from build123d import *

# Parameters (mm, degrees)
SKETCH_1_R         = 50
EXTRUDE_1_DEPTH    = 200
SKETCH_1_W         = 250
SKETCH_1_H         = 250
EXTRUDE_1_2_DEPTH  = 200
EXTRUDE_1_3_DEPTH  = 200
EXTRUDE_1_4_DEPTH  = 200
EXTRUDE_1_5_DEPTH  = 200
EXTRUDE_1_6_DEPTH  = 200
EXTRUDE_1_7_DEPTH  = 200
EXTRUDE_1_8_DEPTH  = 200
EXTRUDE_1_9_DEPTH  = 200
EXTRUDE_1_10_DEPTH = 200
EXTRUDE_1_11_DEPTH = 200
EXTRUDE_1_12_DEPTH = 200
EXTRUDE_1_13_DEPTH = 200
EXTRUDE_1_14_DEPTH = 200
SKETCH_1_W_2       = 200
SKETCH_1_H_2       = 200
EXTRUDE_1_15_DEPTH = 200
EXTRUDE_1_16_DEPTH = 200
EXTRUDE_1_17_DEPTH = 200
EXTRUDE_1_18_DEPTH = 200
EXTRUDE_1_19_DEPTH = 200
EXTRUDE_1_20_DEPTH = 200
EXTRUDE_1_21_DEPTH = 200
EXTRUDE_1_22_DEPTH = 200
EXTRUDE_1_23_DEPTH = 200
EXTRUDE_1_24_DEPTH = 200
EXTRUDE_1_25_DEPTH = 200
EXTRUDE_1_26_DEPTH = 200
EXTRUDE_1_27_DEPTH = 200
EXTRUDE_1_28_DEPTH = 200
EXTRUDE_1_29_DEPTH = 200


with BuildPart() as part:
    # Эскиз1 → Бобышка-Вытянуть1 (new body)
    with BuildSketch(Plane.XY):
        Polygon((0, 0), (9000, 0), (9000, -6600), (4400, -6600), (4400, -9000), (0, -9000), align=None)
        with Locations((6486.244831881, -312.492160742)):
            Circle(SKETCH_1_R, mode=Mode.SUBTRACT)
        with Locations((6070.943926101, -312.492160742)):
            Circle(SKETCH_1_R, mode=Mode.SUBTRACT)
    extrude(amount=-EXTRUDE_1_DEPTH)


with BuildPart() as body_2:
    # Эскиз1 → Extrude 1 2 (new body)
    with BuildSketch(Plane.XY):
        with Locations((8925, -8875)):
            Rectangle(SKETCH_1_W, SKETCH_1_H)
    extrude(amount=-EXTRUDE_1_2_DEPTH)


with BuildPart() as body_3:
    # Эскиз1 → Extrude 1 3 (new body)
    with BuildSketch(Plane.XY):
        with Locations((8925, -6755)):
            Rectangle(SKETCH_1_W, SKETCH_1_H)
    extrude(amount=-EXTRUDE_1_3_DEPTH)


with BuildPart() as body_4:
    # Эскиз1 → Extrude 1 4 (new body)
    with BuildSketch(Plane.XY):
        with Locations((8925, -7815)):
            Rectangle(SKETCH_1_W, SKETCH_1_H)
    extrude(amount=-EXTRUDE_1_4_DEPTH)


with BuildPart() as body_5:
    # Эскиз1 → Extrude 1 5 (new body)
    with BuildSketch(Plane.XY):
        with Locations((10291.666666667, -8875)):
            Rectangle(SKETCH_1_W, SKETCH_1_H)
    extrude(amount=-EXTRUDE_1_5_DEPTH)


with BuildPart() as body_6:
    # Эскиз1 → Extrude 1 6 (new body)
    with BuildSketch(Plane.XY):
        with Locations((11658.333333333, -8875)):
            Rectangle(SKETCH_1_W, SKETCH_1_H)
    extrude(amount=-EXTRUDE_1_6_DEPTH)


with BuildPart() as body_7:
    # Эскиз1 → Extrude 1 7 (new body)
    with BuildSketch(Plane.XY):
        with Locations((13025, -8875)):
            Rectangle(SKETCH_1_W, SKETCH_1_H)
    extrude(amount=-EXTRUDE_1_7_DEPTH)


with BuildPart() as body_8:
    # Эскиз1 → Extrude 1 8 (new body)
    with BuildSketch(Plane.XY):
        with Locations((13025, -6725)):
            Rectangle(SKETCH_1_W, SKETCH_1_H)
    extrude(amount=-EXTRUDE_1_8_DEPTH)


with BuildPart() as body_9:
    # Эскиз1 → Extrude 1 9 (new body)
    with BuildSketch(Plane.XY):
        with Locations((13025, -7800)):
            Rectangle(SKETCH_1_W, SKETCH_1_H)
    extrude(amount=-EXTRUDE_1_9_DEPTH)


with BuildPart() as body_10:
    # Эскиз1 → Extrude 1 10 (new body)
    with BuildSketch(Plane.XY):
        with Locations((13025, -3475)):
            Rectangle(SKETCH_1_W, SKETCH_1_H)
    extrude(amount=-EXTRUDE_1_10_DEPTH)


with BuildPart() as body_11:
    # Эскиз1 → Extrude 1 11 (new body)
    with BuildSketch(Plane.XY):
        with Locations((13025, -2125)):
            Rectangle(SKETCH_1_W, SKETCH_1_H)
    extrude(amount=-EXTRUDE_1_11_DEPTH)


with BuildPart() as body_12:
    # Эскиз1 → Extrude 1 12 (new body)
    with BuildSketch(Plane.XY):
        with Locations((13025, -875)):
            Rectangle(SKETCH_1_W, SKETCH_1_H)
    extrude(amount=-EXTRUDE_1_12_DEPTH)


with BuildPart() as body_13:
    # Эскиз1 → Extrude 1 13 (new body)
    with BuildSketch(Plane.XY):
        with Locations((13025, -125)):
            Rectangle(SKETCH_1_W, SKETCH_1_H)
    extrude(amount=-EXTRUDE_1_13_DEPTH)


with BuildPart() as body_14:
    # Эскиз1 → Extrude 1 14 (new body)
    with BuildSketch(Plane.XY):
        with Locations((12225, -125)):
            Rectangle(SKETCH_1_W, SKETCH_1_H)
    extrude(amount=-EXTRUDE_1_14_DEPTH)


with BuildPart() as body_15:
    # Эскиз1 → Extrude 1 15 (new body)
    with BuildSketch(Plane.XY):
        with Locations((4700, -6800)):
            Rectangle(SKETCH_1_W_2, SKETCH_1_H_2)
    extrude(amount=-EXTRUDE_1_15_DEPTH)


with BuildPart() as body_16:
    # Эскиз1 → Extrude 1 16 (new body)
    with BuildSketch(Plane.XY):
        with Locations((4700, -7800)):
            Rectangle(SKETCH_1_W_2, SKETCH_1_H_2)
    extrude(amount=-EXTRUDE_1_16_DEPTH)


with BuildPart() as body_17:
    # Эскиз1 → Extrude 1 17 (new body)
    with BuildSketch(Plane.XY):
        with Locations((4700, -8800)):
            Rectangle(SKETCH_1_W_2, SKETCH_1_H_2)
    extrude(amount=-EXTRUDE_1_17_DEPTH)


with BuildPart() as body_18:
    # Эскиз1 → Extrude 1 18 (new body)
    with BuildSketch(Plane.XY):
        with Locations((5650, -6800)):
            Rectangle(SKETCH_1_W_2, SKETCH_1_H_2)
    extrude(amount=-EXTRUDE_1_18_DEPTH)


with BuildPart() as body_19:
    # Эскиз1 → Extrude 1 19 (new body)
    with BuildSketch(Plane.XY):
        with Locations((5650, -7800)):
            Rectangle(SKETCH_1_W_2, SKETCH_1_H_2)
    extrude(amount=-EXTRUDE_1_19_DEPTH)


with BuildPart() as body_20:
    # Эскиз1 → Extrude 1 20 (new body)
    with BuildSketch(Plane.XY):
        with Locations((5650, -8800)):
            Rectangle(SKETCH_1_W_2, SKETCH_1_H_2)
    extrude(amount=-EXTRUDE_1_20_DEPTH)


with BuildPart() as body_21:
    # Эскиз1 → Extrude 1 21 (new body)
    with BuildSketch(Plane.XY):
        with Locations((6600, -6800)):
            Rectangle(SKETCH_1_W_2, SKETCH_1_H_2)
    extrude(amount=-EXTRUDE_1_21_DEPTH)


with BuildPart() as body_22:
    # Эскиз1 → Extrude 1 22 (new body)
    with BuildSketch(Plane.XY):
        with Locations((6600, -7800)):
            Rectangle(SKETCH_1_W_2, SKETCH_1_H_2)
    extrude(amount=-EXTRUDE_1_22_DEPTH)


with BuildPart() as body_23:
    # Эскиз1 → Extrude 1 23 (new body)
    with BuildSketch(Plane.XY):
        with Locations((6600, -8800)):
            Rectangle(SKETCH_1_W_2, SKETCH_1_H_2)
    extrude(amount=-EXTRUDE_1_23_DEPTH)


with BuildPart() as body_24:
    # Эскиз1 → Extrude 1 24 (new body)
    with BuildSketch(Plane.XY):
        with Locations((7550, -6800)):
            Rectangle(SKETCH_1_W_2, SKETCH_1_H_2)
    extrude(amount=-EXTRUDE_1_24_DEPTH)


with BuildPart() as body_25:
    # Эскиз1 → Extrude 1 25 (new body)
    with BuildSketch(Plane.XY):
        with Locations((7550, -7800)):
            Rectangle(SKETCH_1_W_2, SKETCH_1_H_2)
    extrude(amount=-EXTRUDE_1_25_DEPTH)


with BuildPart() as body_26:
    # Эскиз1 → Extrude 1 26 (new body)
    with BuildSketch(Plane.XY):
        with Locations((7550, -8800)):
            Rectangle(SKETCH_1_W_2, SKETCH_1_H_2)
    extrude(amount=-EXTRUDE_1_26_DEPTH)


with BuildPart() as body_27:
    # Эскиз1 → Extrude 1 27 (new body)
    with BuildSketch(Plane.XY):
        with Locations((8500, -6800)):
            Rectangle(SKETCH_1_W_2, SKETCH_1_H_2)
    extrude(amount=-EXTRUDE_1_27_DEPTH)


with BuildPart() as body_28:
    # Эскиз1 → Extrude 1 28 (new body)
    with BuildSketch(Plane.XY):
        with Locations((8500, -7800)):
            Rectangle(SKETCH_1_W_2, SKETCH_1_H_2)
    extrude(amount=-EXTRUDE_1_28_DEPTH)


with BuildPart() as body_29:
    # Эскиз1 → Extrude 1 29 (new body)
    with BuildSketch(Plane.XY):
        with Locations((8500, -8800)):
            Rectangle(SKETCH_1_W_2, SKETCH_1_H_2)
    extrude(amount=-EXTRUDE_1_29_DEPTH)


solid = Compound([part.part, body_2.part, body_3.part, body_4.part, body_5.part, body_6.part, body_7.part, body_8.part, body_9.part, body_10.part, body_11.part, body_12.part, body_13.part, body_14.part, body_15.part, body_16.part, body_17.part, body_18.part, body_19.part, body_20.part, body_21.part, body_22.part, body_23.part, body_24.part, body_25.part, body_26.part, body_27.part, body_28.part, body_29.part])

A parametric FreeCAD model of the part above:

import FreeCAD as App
import Part
import Sketcher
Q = App.Units.Quantity

doc = App.newDocument("Part")
body = doc.addObject("PartDesign::Body", "Body")

sketch1 = body.newObject("Sketcher::SketchObject", "Sketch")
sketch1.AttachmentSupport = (doc.getObject("XY_Plane"), [""])
sketch1.MapMode = "FlatFace"
sketch1.addGeometry([
    Part.LineSegment(App.Vector(9000, 0, 0), App.Vector(0, 0, 0)),
    Part.LineSegment(App.Vector(0, 0, 0), App.Vector(0, -9000, 0)),
    Part.LineSegment(App.Vector(0, -9000, 0), App.Vector(4400, -9000, 0)),
    Part.LineSegment(App.Vector(4400, -9000, 0), App.Vector(4400, -6600, 0)),
    Part.LineSegment(App.Vector(4400, -6600, 0), App.Vector(9000, -6600, 0)),
    Part.LineSegment(App.Vector(9000, -6600, 0), App.Vector(9000, 0, 0)),
    Part.Circle(App.Vector(6486, -312, 0), App.Vector(0, 0, 1), 50),
    Part.Circle(App.Vector(6071, -312, 0), App.Vector(0, 0, 1), 50),
], False)
sketch1.addConstraint([
    Sketcher.Constraint("Coincident", 0, 2, 1, 1),
    Sketcher.Constraint("Coincident", 1, 2, 2, 1),
    Sketcher.Constraint("Coincident", 2, 2, 3, 1),
    Sketcher.Constraint("Coincident", 3, 2, 4, 1),
    Sketcher.Constraint("Coincident", 4, 2, 5, 1),
    Sketcher.Constraint("Coincident", 5, 2, 0, 1),
    Sketcher.Constraint("Horizontal", 0),
    Sketcher.Constraint("Vertical", 1),
    Sketcher.Constraint("Horizontal", 2),
    Sketcher.Constraint("Vertical", 3),
    Sketcher.Constraint("Horizontal", 4),
    Sketcher.Constraint("Vertical", 5),
    Sketcher.Constraint("Coincident", 0, 2, -1, 1),
    Sketcher.Constraint("Equal", 6, 7),
    Sketcher.Constraint("Horizontal", 6, 3, 7, 3),
    Sketcher.Constraint("Equal", 0, 1),
    Sketcher.Constraint("Diameter", 6, Q("100 mm")),
    Sketcher.Constraint("DistanceX", 0, 2, 0, 1, Q("9000 mm")),
    Sketcher.Constraint("DistanceX", 2, 1, 2, 2, Q("4400 mm")),
    Sketcher.Constraint("DistanceY", 3, 1, 3, 2, Q("2400 mm")),
    Sketcher.Constraint("DistanceX", -1, 1, 6, 3, Q("6486.244832 mm")),
    Sketcher.Constraint("DistanceY", 6, 3, -1, 1, Q("312.492161 mm")),
    Sketcher.Constraint("DistanceX", -1, 1, 7, 3, Q("6070.943926 mm")),
])
pad1 = body.newObject("PartDesign::Pad", "Pad")
pad1.Profile = sketch1
pad1.Length = 200
pad1.Reversed = True
body2 = doc.addObject("PartDesign::Body", "Body001")

sketch2 = body2.newObject("Sketcher::SketchObject", "Sketch001")
sketch2.AttachmentSupport = (doc.getObject("XY_Plane001"), [""])
sketch2.MapMode = "FlatFace"
sketch2.addGeometry([
    Part.LineSegment(App.Vector(8800, -8750, 0), App.Vector(8800, -9000, 0)),
    Part.LineSegment(App.Vector(8800, -9000, 0), App.Vector(9050, -9000, 0)),
    Part.LineSegment(App.Vector(9050, -9000, 0), App.Vector(9050, -8750, 0)),
    Part.LineSegment(App.Vector(9050, -8750, 0), App.Vector(8800, -8750, 0)),
], False)
sketch2.addConstraint([
    Sketcher.Constraint("Coincident", 0, 2, 1, 1),
    Sketcher.Constraint("Coincident", 1, 2, 2, 1),
    Sketcher.Constraint("Coincident", 2, 2, 3, 1),
    Sketcher.Constraint("Coincident", 3, 2, 0, 1),
    Sketcher.Constraint("Vertical", 0),
    Sketcher.Constraint("Horizontal", 1),
    Sketcher.Constraint("Vertical", 2),
    Sketcher.Constraint("Horizontal", 3),
    Sketcher.Constraint("Equal", 3, 0),
    Sketcher.Constraint("DistanceX", 1, 1, 1, 2, Q("250 mm")),
    Sketcher.Constraint("DistanceX", -1, 1, 0, 2, Q("8800 mm")),
    Sketcher.Constraint("DistanceY", 0, 2, -1, 1, Q("9000 mm")),
])
pad2 = body2.newObject("PartDesign::Pad", "Pad001")
pad2.Profile = sketch2
pad2.Length = 200
pad2.Reversed = True
body3 = doc.addObject("PartDesign::Body", "Body002")

sketch3 = body3.newObject("Sketcher::SketchObject", "Sketch002")
sketch3.AttachmentSupport = (doc.getObject("XY_Plane002"), [""])
sketch3.MapMode = "FlatFace"
sketch3.addGeometry([
    Part.LineSegment(App.Vector(8800, -6630, 0), App.Vector(8800, -6880, 0)),
    Part.LineSegment(App.Vector(8800, -6880, 0), App.Vector(9050, -6880, 0)),
    Part.LineSegment(App.Vector(9050, -6880, 0), App.Vector(9050, -6630, 0)),
    Part.LineSegment(App.Vector(9050, -6630, 0), App.Vector(8800, -6630, 0)),
], False)
sketch3.addConstraint([
    Sketcher.Constraint("Coincident", 0, 2, 1, 1),
    Sketcher.Constraint("Coincident", 1, 2, 2, 1),
    Sketcher.Constraint("Coincident", 2, 2, 3, 1),
    Sketcher.Constraint("Coincident", 3, 2, 0, 1),
    Sketcher.Constraint("Vertical", 0),
    Sketcher.Constraint("Horizontal", 1),
    Sketcher.Constraint("Vertical", 2),
    Sketcher.Constraint("Horizontal", 3),
    Sketcher.Constraint("Equal", 3, 0),
    Sketcher.Constraint("DistanceX", 1, 1, 1, 2, Q("250 mm")),
    Sketcher.Constraint("DistanceX", -1, 1, 0, 2, Q("8800 mm")),
    Sketcher.Constraint("DistanceY", 0, 2, -1, 1, Q("6880 mm")),
])
pad3 = body3.newObject("PartDesign::Pad", "Pad002")
pad3.Profile = sketch3
pad3.Length = 200
pad3.Reversed = True
body4 = doc.addObject("PartDesign::Body", "Body003")

sketch4 = body4.newObject("Sketcher::SketchObject", "Sketch003")
sketch4.AttachmentSupport = (doc.getObject("XY_Plane003"), [""])
sketch4.MapMode = "FlatFace"
sketch4.addGeometry([
    Part.LineSegment(App.Vector(8800, -7690, 0), App.Vector(8800, -7940, 0)),
    Part.LineSegment(App.Vector(8800, -7940, 0), App.Vector(9050, -7940, 0)),
    Part.LineSegment(App.Vector(9050, -7940, 0), App.Vector(9050, -7690, 0)),
    Part.LineSegment(App.Vector(9050, -7690, 0), App.Vector(8800, -7690, 0)),
], False)
sketch4.addConstraint([
    Sketcher.Constraint("Coincident", 0, 2, 1, 1),
    Sketcher.Constraint("Coincident", 1, 2, 2, 1),
    Sketcher.Constraint("Coincident", 2, 2, 3, 1),
    Sketcher.Constraint("Coincident", 3, 2, 0, 1),
    Sketcher.Constraint("Vertical", 0),
    Sketcher.Constraint("Horizontal", 1),
    Sketcher.Constraint("Vertical", 2),
    Sketcher.Constraint("Horizontal", 3),
    Sketcher.Constraint("Equal", 3, 0),
    Sketcher.Constraint("DistanceX", 1, 1, 1, 2, Q("250 mm")),
    Sketcher.Constraint("DistanceX", -1, 1, 0, 2, Q("8800 mm")),
    Sketcher.Constraint("DistanceY", 0, 2, -1, 1, Q("7940 mm")),
])
pad4 = body4.newObject("PartDesign::Pad", "Pad003")
pad4.Profile = sketch4
pad4.Length = 200
pad4.Reversed = True
body5 = doc.addObject("PartDesign::Body", "Body004")

sketch5 = body5.newObject("Sketcher::SketchObject", "Sketch004")
sketch5.AttachmentSupport = (doc.getObject("XY_Plane004"), [""])
sketch5.MapMode = "FlatFace"
sketch5.addGeometry([
    Part.LineSegment(App.Vector(10167, -8750, 0), App.Vector(10167, -9000, 0)),
    Part.LineSegment(App.Vector(10167, -9000, 0), App.Vector(10417, -9000, 0)),
    Part.LineSegment(App.Vector(10417, -9000, 0), App.Vector(10417, -8750, 0)),
    Part.LineSegment(App.Vector(10417, -8750, 0), App.Vector(10167, -8750, 0)),
], False)
sketch5.addConstraint([
    Sketcher.Constraint("Coincident", 0, 2, 1, 1),
    Sketcher.Constraint("Coincident", 1, 2, 2, 1),
    Sketcher.Constraint("Coincident", 2, 2, 3, 1),
    Sketcher.Constraint("Coincident", 3, 2, 0, 1),
    Sketcher.Constraint("Vertical", 0),
    Sketcher.Constraint("Horizontal", 1),
    Sketcher.Constraint("Vertical", 2),
    Sketcher.Constraint("Horizontal", 3),
    Sketcher.Constraint("Equal", 3, 0),
    Sketcher.Constraint("DistanceX", 1, 1, 1, 2, Q("250 mm")),
    Sketcher.Constraint("DistanceY", 0, 2, -1, 1, Q("9000 mm")),
    Sketcher.Constraint("DistanceX", -1, 1, 0, 2, Q("10166.666667 mm")),
])
pad5 = body5.newObject("PartDesign::Pad", "Pad004")
pad5.Profile = sketch5
pad5.Length = 200
pad5.Reversed = True
body6 = doc.addObject("PartDesign::Body", "Body005")

sketch6 = body6.newObject("Sketcher::SketchObject", "Sketch005")
sketch6.AttachmentSupport = (doc.getObject("XY_Plane005"), [""])
sketch6.MapMode = "FlatFace"
sketch6.addGeometry([
    Part.LineSegment(App.Vector(11533, -8750, 0), App.Vector(11533, -9000, 0)),
    Part.LineSegment(App.Vector(11533, -9000, 0), App.Vector(11783, -9000, 0)),
    Part.LineSegment(App.Vector(11783, -9000, 0), App.Vector(11783, -8750, 0)),
    Part.LineSegment(App.Vector(11783, -8750, 0), App.Vector(11533, -8750, 0)),
], False)
sketch6.addConstraint([
    Sketcher.Constraint("Coincident", 0, 2, 1, 1),
    Sketcher.Constraint("Coincident", 1, 2, 2, 1),
    Sketcher.Constraint("Coincident", 2, 2, 3, 1),
    Sketcher.Constraint("Coincident", 3, 2, 0, 1),
    Sketcher.Constraint("Vertical", 0),
    Sketcher.Constraint("Horizontal", 1),
    Sketcher.Constraint("Vertical", 2),
    Sketcher.Constraint("Horizontal", 3),
    Sketcher.Constraint("Equal", 3, 0),
    Sketcher.Constraint("DistanceX", 1, 1, 1, 2, Q("250 mm")),
    Sketcher.Constraint("DistanceY", 0, 2, -1, 1, Q("9000 mm")),
    Sketcher.Constraint("DistanceX", -1, 1, 0, 2, Q("11533.333333 mm")),
])
pad6 = body6.newObject("PartDesign::Pad", "Pad005")
pad6.Profile = sketch6
pad6.Length = 200
pad6.Reversed = True
body7 = doc.addObject("PartDesign::Body", "Body006")

sketch7 = body7.newObject("Sketcher::SketchObject", "Sketch006")
sketch7.AttachmentSupport = (doc.getObject("XY_Plane006"), [""])
sketch7.MapMode = "FlatFace"
sketch7.addGeometry([
    Part.LineSegment(App.Vector(12900, -8750, 0), App.Vector(12900, -9000, 0)),
    Part.LineSegment(App.Vector(12900, -9000, 0), App.Vector(13150, -9000, 0)),
    Part.LineSegment(App.Vector(13150, -9000, 0), App.Vector(13150, -8750, 0)),
    Part.LineSegment(App.Vector(13150, -8750, 0), App.Vector(12900, -8750, 0)),
], False)
sketch7.addConstraint([
    Sketcher.Constraint("Coincident", 0, 2, 1, 1),
    Sketcher.Constraint("Coincident", 1, 2, 2, 1),
    Sketcher.Constraint("Coincident", 2, 2, 3, 1),
    Sketcher.Constraint("Coincident", 3, 2, 0, 1),
    Sketcher.Constraint("Vertical", 0),
    Sketcher.Constraint("Horizontal", 1),
    Sketcher.Constraint("Vertical", 2),
    Sketcher.Constraint("Horizontal", 3),
    Sketcher.Constraint("Equal", 3, 0),
    Sketcher.Constraint("DistanceX", 1, 1, 1, 2, Q("250 mm")),
    Sketcher.Constraint("DistanceX", -1, 1, 0, 2, Q("12900 mm")),
    Sketcher.Constraint("DistanceY", 0, 2, -1, 1, Q("9000 mm")),
])
pad7 = body7.newObject("PartDesign::Pad", "Pad006")
pad7.Profile = sketch7
pad7.Length = 200
pad7.Reversed = True
body8 = doc.addObject("PartDesign::Body", "Body007")

sketch8 = body8.newObject("Sketcher::SketchObject", "Sketch007")
sketch8.AttachmentSupport = (doc.getObject("XY_Plane007"), [""])
sketch8.MapMode = "FlatFace"
sketch8.addGeometry([
    Part.LineSegment(App.Vector(12900, -6600, 0), App.Vector(12900, -6850, 0)),
    Part.LineSegment(App.Vector(12900, -6850, 0), App.Vector(13150, -6850, 0)),
    Part.LineSegment(App.Vector(13150, -6850, 0), App.Vector(13150, -6600, 0)),
    Part.LineSegment(App.Vector(13150, -6600, 0), App.Vector(12900, -6600, 0)),
], False)
sketch8.addConstraint([
    Sketcher.Constraint("Coincident", 0, 2, 1, 1),
    Sketcher.Constraint("Coincident", 1, 2, 2, 1),
    Sketcher.Constraint("Coincident", 2, 2, 3, 1),
    Sketcher.Constraint("Coincident", 3, 2, 0, 1),
    Sketcher.Constraint("Vertical", 0),
    Sketcher.Constraint("Horizontal", 1),
    Sketcher.Constraint("Vertical", 2),
    Sketcher.Constraint("Horizontal", 3),
    Sketcher.Constraint("Equal", 3, 0),
    Sketcher.Constraint("DistanceX", 1, 1, 1, 2, Q("250 mm")),
    Sketcher.Constraint("DistanceX", -1, 1, 0, 2, Q("12900 mm")),
    Sketcher.Constraint("DistanceY", 0, 2, -1, 1, Q("6850 mm")),
])
pad8 = body8.newObject("PartDesign::Pad", "Pad007")
pad8.Profile = sketch8
pad8.Length = 200
pad8.Reversed = True
body9 = doc.addObject("PartDesign::Body", "Body008")

sketch9 = body9.newObject("Sketcher::SketchObject", "Sketch008")
sketch9.AttachmentSupport = (doc.getObject("XY_Plane008"), [""])
sketch9.MapMode = "FlatFace"
sketch9.addGeometry([
    Part.LineSegment(App.Vector(12900, -7675, 0), App.Vector(12900, -7925, 0)),
    Part.LineSegment(App.Vector(12900, -7925, 0), App.Vector(13150, -7925, 0)),
    Part.LineSegment(App.Vector(13150, -7925, 0), App.Vector(13150, -7675, 0)),
    Part.LineSegment(App.Vector(13150, -7675, 0), App.Vector(12900, -7675, 0)),
], False)
sketch9.addConstraint([
    Sketcher.Constraint("Coincident", 0, 2, 1, 1),
    Sketcher.Constraint("Coincident", 1, 2, 2, 1),
    Sketcher.Constraint("Coincident", 2, 2, 3, 1),
    Sketcher.Constraint("Coincident", 3, 2, 0, 1),
    Sketcher.Constraint("Vertical", 0),
    Sketcher.Constraint("Horizontal", 1),
    Sketcher.Constraint("Vertical", 2),
    Sketcher.Constraint("Horizontal", 3),
    Sketcher.Constraint("Equal", 3, 0),
    Sketcher.Constraint("DistanceX", 1, 1, 1, 2, Q("250 mm")),
    Sketcher.Constraint("DistanceX", -1, 1, 0, 2, Q("12900 mm")),
    Sketcher.Constraint("DistanceY", 0, 2, -1, 1, Q("7925 mm")),
])
pad9 = body9.newObject("PartDesign::Pad", "Pad008")
pad9.Profile = sketch9
pad9.Length = 200
pad9.Reversed = True
body10 = doc.addObject("PartDesign::Body", "Body009")

sketch10 = body10.newObject("Sketcher::SketchObject", "Sketch009")
sketch10.AttachmentSupport = (doc.getObject("XY_Plane009"), [""])
sketch10.MapMode = "FlatFace"
sketch10.addGeometry([
    Part.LineSegment(App.Vector(12900, -3350, 0), App.Vector(12900, -3600, 0)),
    Part.LineSegment(App.Vector(12900, -3600, 0), App.Vector(13150, -3600, 0)),
    Part.LineSegment(App.Vector(13150, -3600, 0), App.Vector(13150, -3350, 0)),
    Part.LineSegment(App.Vector(13150, -3350, 0), App.Vector(12900, -3350, 0)),
], False)
sketch10.addConstraint([
    Sketcher.Constraint("Coincident", 0, 2, 1, 1),
    Sketcher.Constraint("Coincident", 1, 2, 2, 1),
    Sketcher.Constraint("Coincident", 2, 2, 3, 1),
    Sketcher.Constraint("Coincident", 3, 2, 0, 1),
    Sketcher.Constraint("Vertical", 0),
    Sketcher.Constraint("Horizontal", 1),
    Sketcher.Constraint("Vertical", 2),
    Sketcher.Constraint("Horizontal", 3),
    Sketcher.Constraint("Equal", 3, 0),
    Sketcher.Constraint("DistanceX", 1, 1, 1, 2, Q("250 mm")),
    Sketcher.Constraint("DistanceX", -1, 1, 0, 2, Q("12900 mm")),
    Sketcher.Constraint("DistanceY", 0, 2, -1, 1, Q("3600 mm")),
])
pad10 = body10.newObject("PartDesign::Pad", "Pad009")
pad10.Profile = sketch10
pad10.Length = 200
pad10.Reversed = True
body11 = doc.addObject("PartDesign::Body", "Body010")

sketch11 = body11.newObject("Sketcher::SketchObject", "Sketch010")
sketch11.AttachmentSupport = (doc.getObject("XY_Plane010"), [""])
sketch11.MapMode = "FlatFace"
sketch11.addGeometry([
    Part.LineSegment(App.Vector(12900, -2000, 0), App.Vector(12900, -2250, 0)),
    Part.LineSegment(App.Vector(12900, -2250, 0), App.Vector(13150, -2250, 0)),
    Part.LineSegment(App.Vector(13150, -2250, 0), App.Vector(13150, -2000, 0)),
    Part.LineSegment(App.Vector(13150, -2000, 0), App.Vector(12900, -2000, 0)),
], False)
sketch11.addConstraint([
    Sketcher.Constraint("Coincident", 0, 2, 1, 1),
    Sketcher.Constraint("Coincident", 1, 2, 2, 1),
    Sketcher.Constraint("Coincident", 2, 2, 3, 1),
    Sketcher.Constraint("Coincident", 3, 2, 0, 1),
    Sketcher.Constraint("Vertical", 0),
    Sketcher.Constraint("Horizontal", 1),
    Sketcher.Constraint("Vertical", 2),
    Sketcher.Constraint("Horizontal", 3),
    Sketcher.Constraint("Equal", 3, 0),
    Sketcher.Constraint("DistanceX", 1, 1, 1, 2, Q("250 mm")),
    Sketcher.Constraint("DistanceX", -1, 1, 0, 2, Q("12900 mm")),
    Sketcher.Constraint("DistanceY", 0, 2, -1, 1, Q("2250 mm")),
])
pad11 = body11.newObject("PartDesign::Pad", "Pad010")
pad11.Profile = sketch11
pad11.Length = 200
pad11.Reversed = True
body12 = doc.addObject("PartDesign::Body", "Body011")

sketch12 = body12.newObject("Sketcher::SketchObject", "Sketch011")
sketch12.AttachmentSupport = (doc.getObject("XY_Plane011"), [""])
sketch12.MapMode = "FlatFace"
sketch12.addGeometry([
    Part.LineSegment(App.Vector(12900, -750, 0), App.Vector(12900, -1000, 0)),
    Part.LineSegment(App.Vector(12900, -1000, 0), App.Vector(13150, -1000, 0)),
    Part.LineSegment(App.Vector(13150, -1000, 0), App.Vector(13150, -750, 0)),
    Part.LineSegment(App.Vector(13150, -750, 0), App.Vector(12900, -750, 0)),
], False)
sketch12.addConstraint([
    Sketcher.Constraint("Coincident", 0, 2, 1, 1),
    Sketcher.Constraint("Coincident", 1, 2, 2, 1),
    Sketcher.Constraint("Coincident", 2, 2, 3, 1),
    Sketcher.Constraint("Coincident", 3, 2, 0, 1),
    Sketcher.Constraint("Vertical", 0),
    Sketcher.Constraint("Horizontal", 1),
    Sketcher.Constraint("Vertical", 2),
    Sketcher.Constraint("Horizontal", 3),
    Sketcher.Constraint("Equal", 3, 0),
    Sketcher.Constraint("DistanceX", 1, 1, 1, 2, Q("250 mm")),
    Sketcher.Constraint("DistanceX", -1, 1, 0, 2, Q("12900 mm")),
    Sketcher.Constraint("DistanceY", 0, 2, -1, 1, Q("1000 mm")),
])
pad12 = body12.newObject("PartDesign::Pad", "Pad011")
pad12.Profile = sketch12
pad12.Length = 200
pad12.Reversed = True
body13 = doc.addObject("PartDesign::Body", "Body012")

sketch13 = body13.newObject("Sketcher::SketchObject", "Sketch012")
sketch13.AttachmentSupport = (doc.getObject("XY_Plane012"), [""])
sketch13.MapMode = "FlatFace"
sketch13.addGeometry([
    Part.LineSegment(App.Vector(12900, 0, 0), App.Vector(12900, -250, 0)),
    Part.LineSegment(App.Vector(12900, -250, 0), App.Vector(13150, -250, 0)),
    Part.LineSegment(App.Vector(13150, -250, 0), App.Vector(13150, 0, 0)),
    Part.LineSegment(App.Vector(13150, 0, 0), App.Vector(12900, 0, 0)),
], False)
sketch13.addConstraint([
    Sketcher.Constraint("Coincident", 0, 2, 1, 1),
    Sketcher.Constraint("Coincident", 1, 2, 2, 1),
    Sketcher.Constraint("Coincident", 2, 2, 3, 1),
    Sketcher.Constraint("Coincident", 3, 2, 0, 1),
    Sketcher.Constraint("Vertical", 0),
    Sketcher.Constraint("Horizontal", 1),
    Sketcher.Constraint("Vertical", 2),
    Sketcher.Constraint("Horizontal", 3),
    Sketcher.Constraint("PointOnObject", 2, 2, -1),
    Sketcher.Constraint("Equal", 3, 0),
    Sketcher.Constraint("DistanceX", 1, 1, 1, 2, Q("250 mm")),
    Sketcher.Constraint("DistanceX", -1, 1, 0, 2, Q("12900 mm")),
])
pad13 = body13.newObject("PartDesign::Pad", "Pad012")
pad13.Profile = sketch13
pad13.Length = 200
pad13.Reversed = True
body14 = doc.addObject("PartDesign::Body", "Body013")

sketch14 = body14.newObject("Sketcher::SketchObject", "Sketch013")
sketch14.AttachmentSupport = (doc.getObject("XY_Plane013"), [""])
sketch14.MapMode = "FlatFace"
sketch14.addGeometry([
    Part.LineSegment(App.Vector(12100, 0, 0), App.Vector(12100, -250, 0)),
    Part.LineSegment(App.Vector(12100, -250, 0), App.Vector(12350, -250, 0)),
    Part.LineSegment(App.Vector(12350, -250, 0), App.Vector(12350, 0, 0)),
    Part.LineSegment(App.Vector(12350, 0, 0), App.Vector(12100, 0, 0)),
], False)
sketch14.addConstraint([
    Sketcher.Constraint("Coincident", 0, 2, 1, 1),
    Sketcher.Constraint("Coincident", 1, 2, 2, 1),
    Sketcher.Constraint("Coincident", 2, 2, 3, 1),
    Sketcher.Constraint("Coincident", 3, 2, 0, 1),
    Sketcher.Constraint("Vertical", 0),
    Sketcher.Constraint("Horizontal", 1),
    Sketcher.Constraint("Vertical", 2),
    Sketcher.Constraint("Horizontal", 3),
    Sketcher.Constraint("PointOnObject", 2, 2, -1),
    Sketcher.Constraint("Equal", 3, 0),
    Sketcher.Constraint("DistanceX", 1, 1, 1, 2, Q("250 mm")),
    Sketcher.Constraint("DistanceX", -1, 1, 0, 2, Q("12100 mm")),
])
pad14 = body14.newObject("PartDesign::Pad", "Pad013")
pad14.Profile = sketch14
pad14.Length = 200
pad14.Reversed = True
body15 = doc.addObject("PartDesign::Body", "Body014")

sketch15 = body15.newObject("Sketcher::SketchObject", "Sketch014")
sketch15.AttachmentSupport = (doc.getObject("XY_Plane014"), [""])
sketch15.MapMode = "FlatFace"
sketch15.addGeometry([
    Part.LineSegment(App.Vector(4600, -6700, 0), App.Vector(4600, -6900, 0)),
    Part.LineSegment(App.Vector(4600, -6900, 0), App.Vector(4800, -6900, 0)),
    Part.LineSegment(App.Vector(4800, -6900, 0), App.Vector(4800, -6700, 0)),
    Part.LineSegment(App.Vector(4800, -6700, 0), App.Vector(4600, -6700, 0)),
], False)
sketch15.addConstraint([
    Sketcher.Constraint("Coincident", 0, 2, 1, 1),
    Sketcher.Constraint("Coincident", 1, 2, 2, 1),
    Sketcher.Constraint("Coincident", 2, 2, 3, 1),
    Sketcher.Constraint("Coincident", 3, 2, 0, 1),
    Sketcher.Constraint("Vertical", 0),
    Sketcher.Constraint("Horizontal", 1),
    Sketcher.Constraint("Vertical", 2),
    Sketcher.Constraint("Horizontal", 3),
    Sketcher.Constraint("Equal", 3, 0),
    Sketcher.Constraint("DistanceX", 1, 1, 1, 2, Q("200 mm")),
    Sketcher.Constraint("DistanceX", -1, 1, 0, 2, Q("4600 mm")),
    Sketcher.Constraint("DistanceY", 0, 2, -1, 1, Q("6900 mm")),
])
pad15 = body15.newObject("PartDesign::Pad", "Pad014")
pad15.Profile = sketch15
pad15.Length = 200
pad15.Reversed = True
body16 = doc.addObject("PartDesign::Body", "Body015")

sketch16 = body16.newObject("Sketcher::SketchObject", "Sketch015")
sketch16.AttachmentSupport = (doc.getObject("XY_Plane015"), [""])
sketch16.MapMode = "FlatFace"
sketch16.addGeometry([
    Part.LineSegment(App.Vector(4600, -7700, 0), App.Vector(4600, -7900, 0)),
    Part.LineSegment(App.Vector(4600, -7900, 0), App.Vector(4800, -7900, 0)),
    Part.LineSegment(App.Vector(4800, -7900, 0), App.Vector(4800, -7700, 0)),
    Part.LineSegment(App.Vector(4800, -7700, 0), App.Vector(4600, -7700, 0)),
], False)
sketch16.addConstraint([
    Sketcher.Constraint("Coincident", 0, 2, 1, 1),
    Sketcher.Constraint("Coincident", 1, 2, 2, 1),
    Sketcher.Constraint("Coincident", 2, 2, 3, 1),
    Sketcher.Constraint("Coincident", 3, 2, 0, 1),
    Sketcher.Constraint("Vertical", 0),
    Sketcher.Constraint("Horizontal", 1),
    Sketcher.Constraint("Vertical", 2),
    Sketcher.Constraint("Horizontal", 3),
    Sketcher.Constraint("Equal", 3, 0),
    Sketcher.Constraint("DistanceX", 1, 1, 1, 2, Q("200 mm")),
    Sketcher.Constraint("DistanceX", -1, 1, 0, 2, Q("4600 mm")),
    Sketcher.Constraint("DistanceY", 0, 2, -1, 1, Q("7900 mm")),
])
pad16 = body16.newObject("PartDesign::Pad", "Pad015")
pad16.Profile = sketch16
pad16.Length = 200
pad16.Reversed = True
body17 = doc.addObject("PartDesign::Body", "Body016")

sketch17 = body17.newObject("Sketcher::SketchObject", "Sketch016")
sketch17.AttachmentSupport = (doc.getObject("XY_Plane016"), [""])
sketch17.MapMode = "FlatFace"
sketch17.addGeometry([
    Part.LineSegment(App.Vector(4600, -8700, 0), App.Vector(4600, -8900, 0)),
    Part.LineSegment(App.Vector(4600, -8900, 0), App.Vector(4800, -8900, 0)),
    Part.LineSegment(App.Vector(4800, -8900, 0), App.Vector(4800, -8700, 0)),
    Part.LineSegment(App.Vector(4800, -8700, 0), App.Vector(4600, -8700, 0)),
], False)
sketch17.addConstraint([
    Sketcher.Constraint("Coincident", 0, 2, 1, 1),
    Sketcher.Constraint("Coincident", 1, 2, 2, 1),
    Sketcher.Constraint("Coincident", 2, 2, 3, 1),
    Sketcher.Constraint("Coincident", 3, 2, 0, 1),
    Sketcher.Constraint("Vertical", 0),
    Sketcher.Constraint("Horizontal", 1),
    Sketcher.Constraint("Vertical", 2),
    Sketcher.Constraint("Horizontal", 3),
    Sketcher.Constraint("Equal", 3, 0),
    Sketcher.Constraint("DistanceX", 1, 1, 1, 2, Q("200 mm")),
    Sketcher.Constraint("DistanceX", -1, 1, 0, 2, Q("4600 mm")),
    Sketcher.Constraint("DistanceY", 0, 2, -1, 1, Q("8900 mm")),
])
pad17 = body17.newObject("PartDesign::Pad", "Pad016")
pad17.Profile = sketch17
pad17.Length = 200
pad17.Reversed = True
body18 = doc.addObject("PartDesign::Body", "Body017")

sketch18 = body18.newObject("Sketcher::SketchObject", "Sketch017")
sketch18.AttachmentSupport = (doc.getObject("XY_Plane017"), [""])
sketch18.MapMode = "FlatFace"
sketch18.addGeometry([
    Part.LineSegment(App.Vector(5550, -6700, 0), App.Vector(5550, -6900, 0)),
    Part.LineSegment(App.Vector(5550, -6900, 0), App.Vector(5750, -6900, 0)),
    Part.LineSegment(App.Vector(5750, -6900, 0), App.Vector(5750, -6700, 0)),
    Part.LineSegment(App.Vector(5750, -6700, 0), App.Vector(5550, -6700, 0)),
], False)
sketch18.addConstraint([
    Sketcher.Constraint("Coincident", 0, 2, 1, 1),
    Sketcher.Constraint("Coincident", 1, 2, 2, 1),
    Sketcher.Constraint("Coincident", 2, 2, 3, 1),
    Sketcher.Constraint("Coincident", 3, 2, 0, 1),
    Sketcher.Constraint("Vertical", 0),
    Sketcher.Constraint("Horizontal", 1),
    Sketcher.Constraint("Vertical", 2),
    Sketcher.Constraint("Horizontal", 3),
    Sketcher.Constraint("Equal", 3, 0),
    Sketcher.Constraint("DistanceX", 1, 1, 1, 2, Q("200 mm")),
    Sketcher.Constraint("DistanceX", -1, 1, 0, 2, Q("5550 mm")),
    Sketcher.Constraint("DistanceY", 0, 2, -1, 1, Q("6900 mm")),
])
pad18 = body18.newObject("PartDesign::Pad", "Pad017")
pad18.Profile = sketch18
pad18.Length = 200
pad18.Reversed = True
body19 = doc.addObject("PartDesign::Body", "Body018")

sketch19 = body19.newObject("Sketcher::SketchObject", "Sketch018")
sketch19.AttachmentSupport = (doc.getObject("XY_Plane018"), [""])
sketch19.MapMode = "FlatFace"
sketch19.addGeometry([
    Part.LineSegment(App.Vector(5550, -7700, 0), App.Vector(5550, -7900, 0)),
    Part.LineSegment(App.Vector(5550, -7900, 0), App.Vector(5750, -7900, 0)),
    Part.LineSegment(App.Vector(5750, -7900, 0), App.Vector(5750, -7700, 0)),
    Part.LineSegment(App.Vector(5750, -7700, 0), App.Vector(5550, -7700, 0)),
], False)
sketch19.addConstraint([
    Sketcher.Constraint("Coincident", 0, 2, 1, 1),
    Sketcher.Constraint("Coincident", 1, 2, 2, 1),
    Sketcher.Constraint("Coincident", 2, 2, 3, 1),
    Sketcher.Constraint("Coincident", 3, 2, 0, 1),
    Sketcher.Constraint("Vertical", 0),
    Sketcher.Constraint("Horizontal", 1),
    Sketcher.Constraint("Vertical", 2),
    Sketcher.Constraint("Horizontal", 3),
    Sketcher.Constraint("Equal", 3, 0),
    Sketcher.Constraint("DistanceX", 1, 1, 1, 2, Q("200 mm")),
    Sketcher.Constraint("DistanceX", -1, 1, 0, 2, Q("5550 mm")),
    Sketcher.Constraint("DistanceY", 0, 2, -1, 1, Q("7900 mm")),
])
pad19 = body19.newObject("PartDesign::Pad", "Pad018")
pad19.Profile = sketch19
pad19.Length = 200
pad19.Reversed = True
body20 = doc.addObject("PartDesign::Body", "Body019")

sketch20 = body20.newObject("Sketcher::SketchObject", "Sketch019")
sketch20.AttachmentSupport = (doc.getObject("XY_Plane019"), [""])
sketch20.MapMode = "FlatFace"
sketch20.addGeometry([
    Part.LineSegment(App.Vector(5550, -8700, 0), App.Vector(5550, -8900, 0)),
    Part.LineSegment(App.Vector(5550, -8900, 0), App.Vector(5750, -8900, 0)),
    Part.LineSegment(App.Vector(5750, -8900, 0), App.Vector(5750, -8700, 0)),
    Part.LineSegment(App.Vector(5750, -8700, 0), App.Vector(5550, -8700, 0)),
], False)
sketch20.addConstraint([
    Sketcher.Constraint("Coincident", 0, 2, 1, 1),
    Sketcher.Constraint("Coincident", 1, 2, 2, 1),
    Sketcher.Constraint("Coincident", 2, 2, 3, 1),
    Sketcher.Constraint("Coincident", 3, 2, 0, 1),
    Sketcher.Constraint("Vertical", 0),
    Sketcher.Constraint("Horizontal", 1),
    Sketcher.Constraint("Vertical", 2),
    Sketcher.Constraint("Horizontal", 3),
    Sketcher.Constraint("Equal", 3, 0),
    Sketcher.Constraint("DistanceX", 1, 1, 1, 2, Q("200 mm")),
    Sketcher.Constraint("DistanceX", -1, 1, 0, 2, Q("5550 mm")),
    Sketcher.Constraint("DistanceY", 0, 2, -1, 1, Q("8900 mm")),
])
pad20 = body20.newObject("PartDesign::Pad", "Pad019")
pad20.Profile = sketch20
pad20.Length = 200
pad20.Reversed = True
body21 = doc.addObject("PartDesign::Body", "Body020")

sketch21 = body21.newObject("Sketcher::SketchObject", "Sketch020")
sketch21.AttachmentSupport = (doc.getObject("XY_Plane020"), [""])
sketch21.MapMode = "FlatFace"
sketch21.addGeometry([
    Part.LineSegment(App.Vector(6500, -6700, 0), App.Vector(6500, -6900, 0)),
    Part.LineSegment(App.Vector(6500, -6900, 0), App.Vector(6700, -6900, 0)),
    Part.LineSegment(App.Vector(6700, -6900, 0), App.Vector(6700, -6700, 0)),
    Part.LineSegment(App.Vector(6700, -6700, 0), App.Vector(6500, -6700, 0)),
], False)
sketch21.addConstraint([
    Sketcher.Constraint("Coincident", 0, 2, 1, 1),
    Sketcher.Constraint("Coincident", 1, 2, 2, 1),
    Sketcher.Constraint("Coincident", 2, 2, 3, 1),
    Sketcher.Constraint("Coincident", 3, 2, 0, 1),
    Sketcher.Constraint("Vertical", 0),
    Sketcher.Constraint("Horizontal", 1),
    Sketcher.Constraint("Vertical", 2),
    Sketcher.Constraint("Horizontal", 3),
    Sketcher.Constraint("Equal", 3, 0),
    Sketcher.Constraint("DistanceX", 1, 1, 1, 2, Q("200 mm")),
    Sketcher.Constraint("DistanceX", -1, 1, 0, 2, Q("6500 mm")),
    Sketcher.Constraint("DistanceY", 0, 2, -1, 1, Q("6900 mm")),
])
pad21 = body21.newObject("PartDesign::Pad", "Pad020")
pad21.Profile = sketch21
pad21.Length = 200
pad21.Reversed = True
body22 = doc.addObject("PartDesign::Body", "Body021")

sketch22 = body22.newObject("Sketcher::SketchObject", "Sketch021")
sketch22.AttachmentSupport = (doc.getObject("XY_Plane021"), [""])
sketch22.MapMode = "FlatFace"
sketch22.addGeometry([
    Part.LineSegment(App.Vector(6500, -7700, 0), App.Vector(6500, -7900, 0)),
    Part.LineSegment(App.Vector(6500, -7900, 0), App.Vector(6700, -7900, 0)),
    Part.LineSegment(App.Vector(6700, -7900, 0), App.Vector(6700, -7700, 0)),
    Part.LineSegment(App.Vector(6700, -7700, 0), App.Vector(6500, -7700, 0)),
], False)
sketch22.addConstraint([
    Sketcher.Constraint("Coincident", 0, 2, 1, 1),
    Sketcher.Constraint("Coincident", 1, 2, 2, 1),
    Sketcher.Constraint("Coincident", 2, 2, 3, 1),
    Sketcher.Constraint("Coincident", 3, 2, 0, 1),
    Sketcher.Constraint("Vertical", 0),
    Sketcher.Constraint("Horizontal", 1),
    Sketcher.Constraint("Vertical", 2),
    Sketcher.Constraint("Horizontal", 3),
    Sketcher.Constraint("Equal", 3, 0),
    Sketcher.Constraint("DistanceX", 1, 1, 1, 2, Q("200 mm")),
    Sketcher.Constraint("DistanceX", -1, 1, 0, 2, Q("6500 mm")),
    Sketcher.Constraint("DistanceY", 0, 2, -1, 1, Q("7900 mm")),
])
pad22 = body22.newObject("PartDesign::Pad", "Pad021")
pad22.Profile = sketch22
pad22.Length = 200
pad22.Reversed = True
body23 = doc.addObject("PartDesign::Body", "Body022")

sketch23 = body23.newObject("Sketcher::SketchObject", "Sketch022")
sketch23.AttachmentSupport = (doc.getObject("XY_Plane022"), [""])
sketch23.MapMode = "FlatFace"
sketch23.addGeometry([
    Part.LineSegment(App.Vector(6500, -8700, 0), App.Vector(6500, -8900, 0)),
    Part.LineSegment(App.Vector(6500, -8900, 0), App.Vector(6700, -8900, 0)),
    Part.LineSegment(App.Vector(6700, -8900, 0), App.Vector(6700, -8700, 0)),
    Part.LineSegment(App.Vector(6700, -8700, 0), App.Vector(6500, -8700, 0)),
], False)
sketch23.addConstraint([
    Sketcher.Constraint("Coincident", 0, 2, 1, 1),
    Sketcher.Constraint("Coincident", 1, 2, 2, 1),
    Sketcher.Constraint("Coincident", 2, 2, 3, 1),
    Sketcher.Constraint("Coincident", 3, 2, 0, 1),
    Sketcher.Constraint("Vertical", 0),
    Sketcher.Constraint("Horizontal", 1),
    Sketcher.Constraint("Vertical", 2),
    Sketcher.Constraint("Horizontal", 3),
    Sketcher.Constraint("Equal", 3, 0),
    Sketcher.Constraint("DistanceX", 1, 1, 1, 2, Q("200 mm")),
    Sketcher.Constraint("DistanceX", -1, 1, 0, 2, Q("6500 mm")),
    Sketcher.Constraint("DistanceY", 0, 2, -1, 1, Q("8900 mm")),
])
pad23 = body23.newObject("PartDesign::Pad", "Pad022")
pad23.Profile = sketch23
pad23.Length = 200
pad23.Reversed = True
body24 = doc.addObject("PartDesign::Body", "Body023")

sketch24 = body24.newObject("Sketcher::SketchObject", "Sketch023")
sketch24.AttachmentSupport = (doc.getObject("XY_Plane023"), [""])
sketch24.MapMode = "FlatFace"
sketch24.addGeometry([
    Part.LineSegment(App.Vector(7450, -6700, 0), App.Vector(7450, -6900, 0)),
    Part.LineSegment(App.Vector(7450, -6900, 0), App.Vector(7650, -6900, 0)),
    Part.LineSegment(App.Vector(7650, -6900, 0), App.Vector(7650, -6700, 0)),
    Part.LineSegment(App.Vector(7650, -6700, 0), App.Vector(7450, -6700, 0)),
], False)
sketch24.addConstraint([
    Sketcher.Constraint("Coincident", 0, 2, 1, 1),
    Sketcher.Constraint("Coincident", 1, 2, 2, 1),
    Sketcher.Constraint("Coincident", 2, 2, 3, 1),
    Sketcher.Constraint("Coincident", 3, 2, 0, 1),
    Sketcher.Constraint("Vertical", 0),
    Sketcher.Constraint("Horizontal", 1),
    Sketcher.Constraint("Vertical", 2),
    Sketcher.Constraint("Horizontal", 3),
    Sketcher.Constraint("Equal", 3, 0),
    Sketcher.Constraint("DistanceX", 1, 1, 1, 2, Q("200 mm")),
    Sketcher.Constraint("DistanceX", -1, 1, 0, 2, Q("7450 mm")),
    Sketcher.Constraint("DistanceY", 0, 2, -1, 1, Q("6900 mm")),
])
pad24 = body24.newObject("PartDesign::Pad", "Pad023")
pad24.Profile = sketch24
pad24.Length = 200
pad24.Reversed = True
body25 = doc.addObject("PartDesign::Body", "Body024")

sketch25 = body25.newObject("Sketcher::SketchObject", "Sketch024")
sketch25.AttachmentSupport = (doc.getObject("XY_Plane024"), [""])
sketch25.MapMode = "FlatFace"
sketch25.addGeometry([
    Part.LineSegment(App.Vector(7450, -7700, 0), App.Vector(7450, -7900, 0)),
    Part.LineSegment(App.Vector(7450, -7900, 0), App.Vector(7650, -7900, 0)),
    Part.LineSegment(App.Vector(7650, -7900, 0), App.Vector(7650, -7700, 0)),
    Part.LineSegment(App.Vector(7650, -7700, 0), App.Vector(7450, -7700, 0)),
], False)
sketch25.addConstraint([
    Sketcher.Constraint("Coincident", 0, 2, 1, 1),
    Sketcher.Constraint("Coincident", 1, 2, 2, 1),
    Sketcher.Constraint("Coincident", 2, 2, 3, 1),
    Sketcher.Constraint("Coincident", 3, 2, 0, 1),
    Sketcher.Constraint("Vertical", 0),
    Sketcher.Constraint("Horizontal", 1),
    Sketcher.Constraint("Vertical", 2),
    Sketcher.Constraint("Horizontal", 3),
    Sketcher.Constraint("Equal", 3, 0),
    Sketcher.Constraint("DistanceX", 1, 1, 1, 2, Q("200 mm")),
    Sketcher.Constraint("DistanceX", -1, 1, 0, 2, Q("7450 mm")),
    Sketcher.Constraint("DistanceY", 0, 2, -1, 1, Q("7900 mm")),
])
pad25 = body25.newObject("PartDesign::Pad", "Pad024")
pad25.Profile = sketch25
pad25.Length = 200
pad25.Reversed = True
body26 = doc.addObject("PartDesign::Body", "Body025")

sketch26 = body26.newObject("Sketcher::SketchObject", "Sketch025")
sketch26.AttachmentSupport = (doc.getObject("XY_Plane025"), [""])
sketch26.MapMode = "FlatFace"
sketch26.addGeometry([
    Part.LineSegment(App.Vector(7450, -8700, 0), App.Vector(7450, -8900, 0)),
    Part.LineSegment(App.Vector(7450, -8900, 0), App.Vector(7650, -8900, 0)),
    Part.LineSegment(App.Vector(7650, -8900, 0), App.Vector(7650, -8700, 0)),
    Part.LineSegment(App.Vector(7650, -8700, 0), App.Vector(7450, -8700, 0)),
], False)
sketch26.addConstraint([
    Sketcher.Constraint("Coincident", 0, 2, 1, 1),
    Sketcher.Constraint("Coincident", 1, 2, 2, 1),
    Sketcher.Constraint("Coincident", 2, 2, 3, 1),
    Sketcher.Constraint("Coincident", 3, 2, 0, 1),
    Sketcher.Constraint("Vertical", 0),
    Sketcher.Constraint("Horizontal", 1),
    Sketcher.Constraint("Vertical", 2),
    Sketcher.Constraint("Horizontal", 3),
    Sketcher.Constraint("Equal", 3, 0),
    Sketcher.Constraint("DistanceX", 1, 1, 1, 2, Q("200 mm")),
    Sketcher.Constraint("DistanceX", -1, 1, 0, 2, Q("7450 mm")),
    Sketcher.Constraint("DistanceY", 0, 2, -1, 1, Q("8900 mm")),
])
pad26 = body26.newObject("PartDesign::Pad", "Pad025")
pad26.Profile = sketch26
pad26.Length = 200
pad26.Reversed = True
body27 = doc.addObject("PartDesign::Body", "Body026")

sketch27 = body27.newObject("Sketcher::SketchObject", "Sketch026")
sketch27.AttachmentSupport = (doc.getObject("XY_Plane026"), [""])
sketch27.MapMode = "FlatFace"
sketch27.addGeometry([
    Part.LineSegment(App.Vector(8400, -6700, 0), App.Vector(8400, -6900, 0)),
    Part.LineSegment(App.Vector(8400, -6900, 0), App.Vector(8600, -6900, 0)),
    Part.LineSegment(App.Vector(8600, -6900, 0), App.Vector(8600, -6700, 0)),
    Part.LineSegment(App.Vector(8600, -6700, 0), App.Vector(8400, -6700, 0)),
], False)
sketch27.addConstraint([
    Sketcher.Constraint("Coincident", 0, 2, 1, 1),
    Sketcher.Constraint("Coincident", 1, 2, 2, 1),
    Sketcher.Constraint("Coincident", 2, 2, 3, 1),
    Sketcher.Constraint("Coincident", 3, 2, 0, 1),
    Sketcher.Constraint("Vertical", 0),
    Sketcher.Constraint("Horizontal", 1),
    Sketcher.Constraint("Vertical", 2),
    Sketcher.Constraint("Horizontal", 3),
    Sketcher.Constraint("Equal", 3, 0),
    Sketcher.Constraint("DistanceX", 1, 1, 1, 2, Q("200 mm")),
    Sketcher.Constraint("DistanceX", -1, 1, 0, 2, Q("8400 mm")),
    Sketcher.Constraint("DistanceY", 0, 2, -1, 1, Q("6900 mm")),
])
pad27 = body27.newObject("PartDesign::Pad", "Pad026")
pad27.Profile = sketch27
pad27.Length = 200
pad27.Reversed = True
body28 = doc.addObject("PartDesign::Body", "Body027")

sketch28 = body28.newObject("Sketcher::SketchObject", "Sketch027")
sketch28.AttachmentSupport = (doc.getObject("XY_Plane027"), [""])
sketch28.MapMode = "FlatFace"
sketch28.addGeometry([
    Part.LineSegment(App.Vector(8400, -7700, 0), App.Vector(8400, -7900, 0)),
    Part.LineSegment(App.Vector(8400, -7900, 0), App.Vector(8600, -7900, 0)),
    Part.LineSegment(App.Vector(8600, -7900, 0), App.Vector(8600, -7700, 0)),
    Part.LineSegment(App.Vector(8600, -7700, 0), App.Vector(8400, -7700, 0)),
], False)
sketch28.addConstraint([
    Sketcher.Constraint("Coincident", 0, 2, 1, 1),
    Sketcher.Constraint("Coincident", 1, 2, 2, 1),
    Sketcher.Constraint("Coincident", 2, 2, 3, 1),
    Sketcher.Constraint("Coincident", 3, 2, 0, 1),
    Sketcher.Constraint("Vertical", 0),
    Sketcher.Constraint("Horizontal", 1),
    Sketcher.Constraint("Vertical", 2),
    Sketcher.Constraint("Horizontal", 3),
    Sketcher.Constraint("Equal", 3, 0),
    Sketcher.Constraint("DistanceX", 1, 1, 1, 2, Q("200 mm")),
    Sketcher.Constraint("DistanceX", -1, 1, 0, 2, Q("8400 mm")),
    Sketcher.Constraint("DistanceY", 0, 2, -1, 1, Q("7900 mm")),
])
pad28 = body28.newObject("PartDesign::Pad", "Pad027")
pad28.Profile = sketch28
pad28.Length = 200
pad28.Reversed = True
body29 = doc.addObject("PartDesign::Body", "Body028")

sketch29 = body29.newObject("Sketcher::SketchObject", "Sketch028")
sketch29.AttachmentSupport = (doc.getObject("XY_Plane028"), [""])
sketch29.MapMode = "FlatFace"
sketch29.addGeometry([
    Part.LineSegment(App.Vector(8400, -8700, 0), App.Vector(8400, -8900, 0)),
    Part.LineSegment(App.Vector(8400, -8900, 0), App.Vector(8600, -8900, 0)),
    Part.LineSegment(App.Vector(8600, -8900, 0), App.Vector(8600, -8700, 0)),
    Part.LineSegment(App.Vector(8600, -8700, 0), App.Vector(8400, -8700, 0)),
], False)
sketch29.addConstraint([
    Sketcher.Constraint("Coincident", 0, 2, 1, 1),
    Sketcher.Constraint("Coincident", 1, 2, 2, 1),
    Sketcher.Constraint("Coincident", 2, 2, 3, 1),
    Sketcher.Constraint("Coincident", 3, 2, 0, 1),
    Sketcher.Constraint("Vertical", 0),
    Sketcher.Constraint("Horizontal", 1),
    Sketcher.Constraint("Vertical", 2),
    Sketcher.Constraint("Horizontal", 3),
    Sketcher.Constraint("Equal", 3, 0),
    Sketcher.Constraint("DistanceX", 1, 1, 1, 2, Q("200 mm")),
    Sketcher.Constraint("DistanceX", -1, 1, 0, 2, Q("8400 mm")),
    Sketcher.Constraint("DistanceY", 0, 2, -1, 1, Q("8900 mm")),
])
pad29 = body29.newObject("PartDesign::Pad", "Pad028")
pad29.Profile = sketch29
pad29.Length = 200
pad29.Reversed = True

doc.recompute()
